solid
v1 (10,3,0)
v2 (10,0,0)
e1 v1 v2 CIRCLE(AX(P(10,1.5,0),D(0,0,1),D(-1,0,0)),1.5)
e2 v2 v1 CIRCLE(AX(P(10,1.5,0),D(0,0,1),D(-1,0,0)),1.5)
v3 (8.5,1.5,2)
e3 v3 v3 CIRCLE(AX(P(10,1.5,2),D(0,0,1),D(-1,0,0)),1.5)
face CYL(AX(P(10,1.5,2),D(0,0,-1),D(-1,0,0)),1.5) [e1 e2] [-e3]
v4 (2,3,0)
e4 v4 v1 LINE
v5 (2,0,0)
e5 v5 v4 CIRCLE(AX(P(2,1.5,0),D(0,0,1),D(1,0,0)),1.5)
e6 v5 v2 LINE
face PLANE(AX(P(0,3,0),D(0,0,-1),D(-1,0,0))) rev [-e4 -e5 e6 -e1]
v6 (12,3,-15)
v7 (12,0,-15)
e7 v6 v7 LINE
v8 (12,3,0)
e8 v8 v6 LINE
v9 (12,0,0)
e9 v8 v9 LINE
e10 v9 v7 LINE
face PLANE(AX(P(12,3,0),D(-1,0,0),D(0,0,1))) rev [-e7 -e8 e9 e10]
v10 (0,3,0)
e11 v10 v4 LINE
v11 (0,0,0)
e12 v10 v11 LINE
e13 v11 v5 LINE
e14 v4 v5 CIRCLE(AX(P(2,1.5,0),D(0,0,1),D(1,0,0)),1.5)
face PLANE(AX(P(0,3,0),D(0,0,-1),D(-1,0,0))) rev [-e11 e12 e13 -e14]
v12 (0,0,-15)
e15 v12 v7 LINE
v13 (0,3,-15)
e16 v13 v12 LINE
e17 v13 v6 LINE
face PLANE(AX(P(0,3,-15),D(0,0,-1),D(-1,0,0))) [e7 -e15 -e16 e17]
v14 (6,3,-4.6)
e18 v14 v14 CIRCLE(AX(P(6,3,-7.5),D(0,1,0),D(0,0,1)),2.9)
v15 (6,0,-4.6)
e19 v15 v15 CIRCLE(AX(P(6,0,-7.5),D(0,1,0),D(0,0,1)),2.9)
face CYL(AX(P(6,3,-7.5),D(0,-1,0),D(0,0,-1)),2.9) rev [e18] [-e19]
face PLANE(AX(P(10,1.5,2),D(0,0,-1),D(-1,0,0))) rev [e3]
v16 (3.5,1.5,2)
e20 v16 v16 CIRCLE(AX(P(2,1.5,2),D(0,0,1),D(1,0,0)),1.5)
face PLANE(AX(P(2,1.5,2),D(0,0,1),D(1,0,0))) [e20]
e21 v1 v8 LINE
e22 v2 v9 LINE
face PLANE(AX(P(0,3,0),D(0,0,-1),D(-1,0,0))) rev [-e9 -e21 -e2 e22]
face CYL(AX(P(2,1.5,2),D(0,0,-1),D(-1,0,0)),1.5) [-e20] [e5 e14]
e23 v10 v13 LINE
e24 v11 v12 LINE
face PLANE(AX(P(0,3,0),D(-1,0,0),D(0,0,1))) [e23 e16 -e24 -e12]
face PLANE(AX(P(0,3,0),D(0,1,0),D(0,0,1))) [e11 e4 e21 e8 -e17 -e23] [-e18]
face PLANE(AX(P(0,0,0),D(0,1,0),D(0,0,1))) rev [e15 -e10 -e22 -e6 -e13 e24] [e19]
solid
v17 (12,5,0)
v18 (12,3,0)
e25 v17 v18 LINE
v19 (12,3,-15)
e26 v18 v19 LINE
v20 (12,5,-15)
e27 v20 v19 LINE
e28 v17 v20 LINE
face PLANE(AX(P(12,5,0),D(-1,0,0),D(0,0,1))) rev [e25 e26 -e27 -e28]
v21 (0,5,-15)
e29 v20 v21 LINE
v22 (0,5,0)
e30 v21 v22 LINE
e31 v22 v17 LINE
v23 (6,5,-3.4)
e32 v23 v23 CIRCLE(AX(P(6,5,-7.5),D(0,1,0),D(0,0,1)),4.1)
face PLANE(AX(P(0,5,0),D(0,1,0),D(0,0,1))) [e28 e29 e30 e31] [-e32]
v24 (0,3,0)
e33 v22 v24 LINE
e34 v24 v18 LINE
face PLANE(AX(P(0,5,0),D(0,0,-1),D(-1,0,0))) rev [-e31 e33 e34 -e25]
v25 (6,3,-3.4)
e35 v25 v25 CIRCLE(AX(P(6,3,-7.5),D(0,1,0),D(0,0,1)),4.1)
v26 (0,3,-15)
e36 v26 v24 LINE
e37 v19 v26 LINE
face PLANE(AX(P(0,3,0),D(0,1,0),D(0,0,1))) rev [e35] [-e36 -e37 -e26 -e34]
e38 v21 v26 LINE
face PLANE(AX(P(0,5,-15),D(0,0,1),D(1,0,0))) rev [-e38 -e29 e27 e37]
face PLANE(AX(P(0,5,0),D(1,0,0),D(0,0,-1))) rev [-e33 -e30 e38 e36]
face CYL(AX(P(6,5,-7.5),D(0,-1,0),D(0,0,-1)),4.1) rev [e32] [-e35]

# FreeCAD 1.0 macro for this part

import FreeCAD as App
import Part
import Sketcher
Q = App.Units.Quantity

doc = App.newDocument("Part")
body = doc.addObject("PartDesign::Body", "Body")

# Sketch on XZ plane
sketch1 = body.newObject("Sketcher::SketchObject", "Sketch")
sketch1.AttachmentSupport = (doc.getObject("XZ_Plane"), [""])
sketch1.MapMode = "FlatFace"
sketch1.addGeometry(Part.LineSegment(App.Vector(0, -15, 0), App.Vector(0, 0, 0)), False)
sketch1.addGeometry(Part.LineSegment(App.Vector(0, 0, 0), App.Vector(12, 0, 0)), False)
sketch1.addGeometry(Part.LineSegment(App.Vector(12, 0, 0), App.Vector(12, -15, 0)), False)
sketch1.addGeometry(Part.LineSegment(App.Vector(12, -15, 0), App.Vector(0, -15, 0)), False)
sketch1.addGeometry(Part.Circle(App.Vector(6, -7.5, 0), App.Vector(0, 0, 1), 2.9), False)
sketch1.addConstraint(Sketcher.Constraint("Coincident", 0, 2, 1, 1))
sketch1.addConstraint(Sketcher.Constraint("Coincident", 1, 2, 2, 1))
sketch1.addConstraint(Sketcher.Constraint("Coincident", 2, 2, 3, 1))
sketch1.addConstraint(Sketcher.Constraint("Coincident", 3, 2, 0, 1))
sketch1.addConstraint(Sketcher.Constraint("Vertical", 0))
sketch1.addConstraint(Sketcher.Constraint("Horizontal", 1))
sketch1.addConstraint(Sketcher.Constraint("Vertical", 2))
sketch1.addConstraint(Sketcher.Constraint("Horizontal", 3))
sketch1.addConstraint(Sketcher.Constraint("Coincident", 0, 2, -1, 1))
sketch1.addConstraint(Sketcher.Constraint("Diameter", 4, Q("5.8 mm")))
sketch1.addConstraint(Sketcher.Constraint("DistanceX", 1, 1, 1, 2, Q("12 mm")))
sketch1.addConstraint(Sketcher.Constraint("DistanceY", 0, 1, 0, 2, Q("15 mm")))
sketch1.addConstraint(Sketcher.Constraint("DistanceX", -1, 1, 4, 3, Q("6 mm")))
sketch1.addConstraint(Sketcher.Constraint("DistanceY", 4, 3, -1, 1, Q("7.5 mm")))
pad1 = body.newObject("PartDesign::Pad", "Pad")
pad1.Profile = sketch1
pad1.Length = 3
pad1.Reversed = True

# Sketch on XY plane
sketch2 = body.newObject("Sketcher::SketchObject", "Sketch001")
sketch2.AttachmentSupport = (doc.getObject("XY_Plane"), [""])
sketch2.MapMode = "FlatFace"
sketch2.addGeometry(Part.Circle(App.Vector(2, 1.5, 0), App.Vector(0, 0, 1), 1.5), False)
sketch2.addGeometry(Part.Circle(App.Vector(10, 1.5, 0), App.Vector(0, 0, 1), 1.5), False)
sketch2.addConstraint(Sketcher.Constraint("Equal", 0, 1))
sketch2.addConstraint(Sketcher.Constraint("Horizontal", 0, 3, 1, 3))
sketch2.addConstraint(Sketcher.Constraint("Diameter", 0, Q("3 mm")))
sketch2.addConstraint(Sketcher.Constraint("DistanceX", -1, 1, 0, 3, Q("2 mm")))
sketch2.addConstraint(Sketcher.Constraint("DistanceX", -1, 1, 1, 3, Q("10 mm")))
sketch2.addConstraint(Sketcher.Constraint("DistanceY", -1, 1, 0, 3, Q("1.5 mm")))
pad2 = body.newObject("PartDesign::Pad", "Pad001")
pad2.Profile = sketch2
pad2.Length = 2
body2 = doc.addObject("PartDesign::Body", "Body001")

# Sketch on XZ plane
sketch3 = body2.newObject("Sketcher::SketchObject", "Sketch002")
sketch3.AttachmentSupport = (doc.getObject("XZ_Plane001"), [""])
sketch3.MapMode = "FlatFace"
sketch3.AttachmentOffset = App.Placement(App.Vector(0, 0, -3), App.Rotation())
sketch3.addGeometry(Part.LineSegment(App.Vector(0, -15, 0), App.Vector(0, 0, 0)), False)
sketch3.addGeometry(Part.LineSegment(App.Vector(0, 0, 0), App.Vector(12, 0, 0)), False)
sketch3.addGeometry(Part.LineSegment(App.Vector(12, 0, 0), App.Vector(12, -15, 0)), False)
sketch3.addGeometry(Part.LineSegment(App.Vector(12, -15, 0), App.Vector(0, -15, 0)), False)
sketch3.addGeometry(Part.Circle(App.Vector(6, -7.5, 0), App.Vector(0, 0, 1), 4.1), False)
sketch3.addConstraint(Sketcher.Constraint("Coincident", 0, 2, 1, 1))
sketch3.addConstraint(Sketcher.Constraint("Coincident", 1, 2, 2, 1))
sketch3.addConstraint(Sketcher.Constraint("Coincident", 2, 2, 3, 1))
sketch3.addConstraint(Sketcher.Constraint("Coincident", 3, 2, 0, 1))
sketch3.addConstraint(Sketcher.Constraint("Vertical", 0))
sketch3.addConstraint(Sketcher.Constraint("Horizontal", 1))
sketch3.addConstraint(Sketcher.Constraint("Vertical", 2))
sketch3.addConstraint(Sketcher.Constraint("Horizontal", 3))
sketch3.addConstraint(Sketcher.Constraint("Coincident", 0, 2, -1, 1))
sketch3.addConstraint(Sketcher.Constraint("Diameter", 4, Q("8.2 mm")))
sketch3.addConstraint(Sketcher.Constraint("DistanceX", 1, 1, 1, 2, Q("12 mm")))
sketch3.addConstraint(Sketcher.Constraint("DistanceY", 0, 1, 0, 2, Q("15 mm")))
sketch3.addConstraint(Sketcher.Constraint("DistanceX", -1, 1, 4, 3, Q("6 mm")))
sketch3.addConstraint(Sketcher.Constraint("DistanceY", 4, 3, -1, 1, Q("7.5 mm")))
pad3 = body2.newObject("PartDesign::Pad", "Pad002")
pad3.Profile = sketch3
pad3.Length = 2
pad3.Reversed = True

doc.recompute()
